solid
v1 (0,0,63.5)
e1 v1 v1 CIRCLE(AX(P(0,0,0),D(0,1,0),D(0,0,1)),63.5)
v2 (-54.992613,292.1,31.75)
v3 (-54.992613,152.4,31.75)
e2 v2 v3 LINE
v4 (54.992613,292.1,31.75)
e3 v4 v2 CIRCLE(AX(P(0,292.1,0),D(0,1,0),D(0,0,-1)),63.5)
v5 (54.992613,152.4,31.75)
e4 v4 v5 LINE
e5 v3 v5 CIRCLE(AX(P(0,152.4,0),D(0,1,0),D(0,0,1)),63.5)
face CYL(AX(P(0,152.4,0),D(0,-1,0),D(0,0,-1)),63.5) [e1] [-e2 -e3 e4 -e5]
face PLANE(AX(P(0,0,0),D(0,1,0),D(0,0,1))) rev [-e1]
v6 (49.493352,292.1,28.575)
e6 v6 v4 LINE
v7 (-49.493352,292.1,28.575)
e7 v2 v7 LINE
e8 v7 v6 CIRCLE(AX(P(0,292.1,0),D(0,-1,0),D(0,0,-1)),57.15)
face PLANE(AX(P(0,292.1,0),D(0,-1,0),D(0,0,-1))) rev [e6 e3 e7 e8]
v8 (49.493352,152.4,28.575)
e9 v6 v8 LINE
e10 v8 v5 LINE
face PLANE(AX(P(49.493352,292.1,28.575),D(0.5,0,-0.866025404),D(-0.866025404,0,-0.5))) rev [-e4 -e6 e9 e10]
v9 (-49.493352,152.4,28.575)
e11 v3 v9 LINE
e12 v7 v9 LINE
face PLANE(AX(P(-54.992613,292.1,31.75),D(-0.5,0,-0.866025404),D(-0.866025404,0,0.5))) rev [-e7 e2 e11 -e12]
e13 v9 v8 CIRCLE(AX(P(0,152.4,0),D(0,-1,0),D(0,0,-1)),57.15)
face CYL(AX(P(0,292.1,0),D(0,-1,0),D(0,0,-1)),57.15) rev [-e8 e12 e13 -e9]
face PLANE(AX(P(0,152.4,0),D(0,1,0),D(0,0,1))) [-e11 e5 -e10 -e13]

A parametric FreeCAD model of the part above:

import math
import FreeCAD as App
import Part
import Sketcher
from FreeCAD import Vector
Q = App.Units.Quantity

doc = App.newDocument("Part")
body = doc.addObject("PartDesign::Body", "Body")

sketch1 = body.newObject("Sketcher::SketchObject", "Sketch")
sketch1.AttachmentSupport = (doc.getObject("XZ_Plane"), [""])
sketch1.MapMode = "FlatFace"
sketch1.addGeometry(Part.Circle(Vector(0, 0, 0), Vector(0, 0, 1), 63.5), False)
sketch1.addConstraint(Sketcher.Constraint("Coincident", 0, 3, -1, 1))
sketch1.addConstraint(Sketcher.Constraint("Diameter", 0, Q("5 in")))
pad1 = body.newObject("PartDesign::Pad", "Pad")
pad1.Profile = sketch1
pad1.Length = Q("6 in")
pad1.Reversed = True

sketch2 = body.newObject("Sketcher::SketchObject", "Sketch001")
sketch2.AttachmentSupport = (doc.getObject("XZ_Plane"), [""])
sketch2.MapMode = "FlatFace"
sketch2.AttachmentOffset = App.Placement(Vector(0, 0, -6 * 25.4), App.Rotation())
sketch2.addGeometry(Part.LineSegment(Vector(-54.992613, 31.75, 0), Vector(-49.493352, 28.575, 0)), False)
sketch2.addGeometry(Part.ArcOfCircle(Part.Circle(Vector(0, 0, 0), Vector(0, 0, 1), 57.15), math.radians(150), math.radians(390)), False)
sketch2.addGeometry(Part.LineSegment(Vector(49.493352, 28.575, 0), Vector(54.992613, 31.75, 0)), False)
sketch2.addGeometry(Part.ArcOfCircle(Part.Circle(Vector(0, 0, 0), Vector(0, 0, 1), 63.5), math.radians(150), math.radians(390)), False)
sketch2.addConstraint(Sketcher.Constraint("Coincident", 0, 2, 1, 1))
sketch2.addConstraint(Sketcher.Constraint("Coincident", 1, 2, 2, 1))
sketch2.addConstraint(Sketcher.Constraint("Coincident", 2, 2, 3, 2))
sketch2.addConstraint(Sketcher.Constraint("Coincident", 3, 1, 0, 1))
sketch2.addConstraint(Sketcher.Constraint("Coincident", 1, 3, -1, 1))
sketch2.addConstraint(Sketcher.Constraint("Coincident", 3, 3, -1, 1))
sketch2.addConstraint(Sketcher.Constraint("Horizontal", 0, 2, 1, 2))
sketch2.addConstraint(Sketcher.Constraint("Horizontal", 2, 2, 3, 1))
sketch2.addConstraint(Sketcher.Constraint("Radius", 3, Q("2.5 in")))
sketch2.addConstraint(Sketcher.Constraint("Radius", 1, Q("2.25 in")))
sketch2.addConstraint(Sketcher.Constraint("Angle", 0, Q("-30 deg")))
sketch2.addConstraint(Sketcher.Constraint("DistanceY", -1, 1, 2, 2, Q("1.25 in")))
pad2 = body.newObject("PartDesign::Pad", "Pad001")
pad2.Profile = sketch2
pad2.Length = Q("5.5 in")
pad2.Reversed = True

doc.recompute()
